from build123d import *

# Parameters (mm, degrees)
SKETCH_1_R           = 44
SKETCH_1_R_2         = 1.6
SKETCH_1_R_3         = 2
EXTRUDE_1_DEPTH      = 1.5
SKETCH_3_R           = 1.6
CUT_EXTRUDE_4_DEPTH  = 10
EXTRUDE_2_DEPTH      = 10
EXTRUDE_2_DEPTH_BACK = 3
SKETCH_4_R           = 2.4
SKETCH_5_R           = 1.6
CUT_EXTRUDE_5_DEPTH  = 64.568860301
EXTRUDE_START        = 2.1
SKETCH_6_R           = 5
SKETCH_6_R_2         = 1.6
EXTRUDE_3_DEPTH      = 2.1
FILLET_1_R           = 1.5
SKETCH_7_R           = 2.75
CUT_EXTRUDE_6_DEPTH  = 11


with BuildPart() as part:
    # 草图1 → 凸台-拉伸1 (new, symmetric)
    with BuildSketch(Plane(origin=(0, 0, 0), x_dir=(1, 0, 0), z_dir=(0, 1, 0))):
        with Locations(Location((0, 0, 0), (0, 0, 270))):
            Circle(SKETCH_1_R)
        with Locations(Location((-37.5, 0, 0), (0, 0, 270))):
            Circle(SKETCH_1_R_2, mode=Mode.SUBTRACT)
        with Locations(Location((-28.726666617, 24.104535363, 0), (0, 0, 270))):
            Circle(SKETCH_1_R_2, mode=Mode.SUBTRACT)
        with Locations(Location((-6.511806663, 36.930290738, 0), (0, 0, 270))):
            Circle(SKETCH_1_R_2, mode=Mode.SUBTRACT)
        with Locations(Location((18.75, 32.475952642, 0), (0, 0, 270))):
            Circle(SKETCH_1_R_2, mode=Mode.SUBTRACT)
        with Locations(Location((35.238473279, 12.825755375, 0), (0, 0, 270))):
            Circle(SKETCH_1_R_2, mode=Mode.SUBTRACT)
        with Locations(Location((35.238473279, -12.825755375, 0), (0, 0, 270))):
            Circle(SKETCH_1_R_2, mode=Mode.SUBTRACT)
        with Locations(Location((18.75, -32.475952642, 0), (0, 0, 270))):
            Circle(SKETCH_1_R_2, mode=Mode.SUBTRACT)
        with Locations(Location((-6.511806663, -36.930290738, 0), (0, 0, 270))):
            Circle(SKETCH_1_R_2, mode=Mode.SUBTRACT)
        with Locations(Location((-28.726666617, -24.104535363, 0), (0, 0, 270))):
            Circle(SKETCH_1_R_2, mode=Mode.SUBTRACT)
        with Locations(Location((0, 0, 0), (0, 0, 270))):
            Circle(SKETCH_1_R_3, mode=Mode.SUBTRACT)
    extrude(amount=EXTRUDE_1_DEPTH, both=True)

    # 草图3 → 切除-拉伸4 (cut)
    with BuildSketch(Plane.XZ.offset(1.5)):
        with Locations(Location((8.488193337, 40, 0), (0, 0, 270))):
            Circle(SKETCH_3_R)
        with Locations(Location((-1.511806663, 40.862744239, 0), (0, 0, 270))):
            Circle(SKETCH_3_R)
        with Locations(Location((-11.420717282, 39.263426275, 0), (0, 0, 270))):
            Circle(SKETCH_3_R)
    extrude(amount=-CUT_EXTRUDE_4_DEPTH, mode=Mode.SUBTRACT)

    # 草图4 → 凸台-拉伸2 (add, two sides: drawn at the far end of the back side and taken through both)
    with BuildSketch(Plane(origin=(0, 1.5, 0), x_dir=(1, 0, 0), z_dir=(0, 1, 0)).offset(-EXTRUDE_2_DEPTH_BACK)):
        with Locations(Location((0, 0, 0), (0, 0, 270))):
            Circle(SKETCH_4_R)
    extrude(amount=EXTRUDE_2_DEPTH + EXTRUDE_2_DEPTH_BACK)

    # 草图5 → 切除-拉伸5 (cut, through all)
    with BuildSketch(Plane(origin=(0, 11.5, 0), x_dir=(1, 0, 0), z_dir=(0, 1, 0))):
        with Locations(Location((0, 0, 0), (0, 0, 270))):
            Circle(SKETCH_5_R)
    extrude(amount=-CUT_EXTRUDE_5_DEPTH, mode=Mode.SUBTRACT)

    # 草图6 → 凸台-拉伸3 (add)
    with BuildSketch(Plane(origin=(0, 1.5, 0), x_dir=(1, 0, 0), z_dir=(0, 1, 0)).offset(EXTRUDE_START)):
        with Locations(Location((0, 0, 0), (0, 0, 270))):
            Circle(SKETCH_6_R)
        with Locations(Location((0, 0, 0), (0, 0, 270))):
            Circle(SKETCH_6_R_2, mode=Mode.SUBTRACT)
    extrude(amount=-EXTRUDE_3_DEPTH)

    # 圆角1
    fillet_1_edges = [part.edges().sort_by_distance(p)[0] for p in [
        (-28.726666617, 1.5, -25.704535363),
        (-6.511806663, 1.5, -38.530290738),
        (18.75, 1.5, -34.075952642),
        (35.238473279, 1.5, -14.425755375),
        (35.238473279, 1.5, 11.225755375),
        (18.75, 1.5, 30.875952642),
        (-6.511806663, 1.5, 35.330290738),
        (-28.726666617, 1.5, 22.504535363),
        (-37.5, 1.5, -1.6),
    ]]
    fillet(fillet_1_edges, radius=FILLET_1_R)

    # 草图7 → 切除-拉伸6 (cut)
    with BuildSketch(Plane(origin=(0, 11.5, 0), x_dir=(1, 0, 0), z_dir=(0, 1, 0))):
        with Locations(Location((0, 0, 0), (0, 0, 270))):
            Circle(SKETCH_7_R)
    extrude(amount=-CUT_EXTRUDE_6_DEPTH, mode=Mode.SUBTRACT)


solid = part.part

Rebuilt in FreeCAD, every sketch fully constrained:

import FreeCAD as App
import Part
import Sketcher

V = App.Vector


def edges_at(feature, points):
    """Names of the edges that pass closest to the given points."""
    edges = feature.Shape.Edges
    near = lambda p: min(range(len(edges)), key=lambda i: edges[i].distToShape(Part.Vertex(*p))[0])
    return sorted({f"Edge{near(p) + 1}" for p in points})

doc = App.newDocument("Part")
body = doc.addObject("PartDesign::Body", "Body")

# Sketch on XZ plane
sketch1 = doc.addObject("Sketcher::SketchObject", "Sketch")
body.addObject(sketch1)
sketch1.AttachmentSupport = (doc.XZ_Plane, [""])
sketch1.MapMode = "FlatFace"
sketch1.addGeometry([
    Part.Circle(V(0, 0, 0), V(0, 0, 1), 44),  # 0
    Part.Circle(V(-28.726667, -24.104535, 0), V(0, 0, 1), 1.6),  # 1
    Part.Circle(V(-6.511807, -36.930291, 0), V(0, 0, 1), 1.6),  # 2
    Part.Circle(V(-37.5, 0, 0), V(0, 0, 1), 1.6),  # 3
    Part.Circle(V(-28.726667, 24.104535, 0), V(0, 0, 1), 1.6),  # 4
    Part.Circle(V(-6.511807, 36.930291, 0), V(0, 0, 1), 1.6),  # 5
    Part.Circle(V(0, 0, 0), V(0, 0, 1), 2),  # 6
    Part.Circle(V(18.75, -32.475953, 0), V(0, 0, 1), 1.6),  # 7
    Part.Circle(V(35.238473, -12.825755, 0), V(0, 0, 1), 1.6),  # 8
    Part.Circle(V(35.238473, 12.825755, 0), V(0, 0, 1), 1.6),  # 9
    Part.Circle(V(18.75, 32.475953, 0), V(0, 0, 1), 1.6),  # 10
], False)
sketch1.addConstraint([
    Sketcher.Constraint("Coincident", 0, 3, -1, 1),
    Sketcher.Constraint("Coincident", 6, 3, -1, 1),
    Sketcher.Constraint("Equal", 1, 2),
    Sketcher.Constraint("Equal", 2, 3),
    Sketcher.Constraint("Equal", 3, 4),
    Sketcher.Constraint("Equal", 4, 5),
    Sketcher.Constraint("Equal", 5, 7),
    Sketcher.Constraint("Equal", 7, 8),
    Sketcher.Constraint("Equal", 8, 9),
    Sketcher.Constraint("Equal", 9, 10),
    Sketcher.Constraint("Symmetric", 1, 3, 4, 3, -1),
    Sketcher.Constraint("Symmetric", 2, 3, 5, 3, -1),
    Sketcher.Constraint("Symmetric", 8, 3, 9, 3, -1),
    Sketcher.Constraint("Symmetric", 7, 3, 10, 3, -1),
    Sketcher.Constraint("PointOnObject", 3, 3, -1),
    Sketcher.Constraint("Diameter", 0, 88.0),
    Sketcher.Constraint("Diameter", 6, 4.0),
    Sketcher.Constraint("Diameter", 1, 3.2),
    Sketcher.Constraint("DistanceX", 3, 3, -1, 1, 37.5),
    Sketcher.Constraint("DistanceX", -1, 1, 7, 3, 18.75),
    Sketcher.Constraint("DistanceY", 2, 3, -1, 1, 36.930291),
    Sketcher.Constraint("DistanceX", 1, 3, 2, 3, 22.21486),
    Sketcher.Constraint("DistanceY", 1, 3, 4, 3, 48.209071),
    Sketcher.Constraint("DistanceY", 2, 3, 7, 3, 4.454338),
    Sketcher.Constraint("DistanceX", 2, 3, 8, 3, 41.75028),
    Sketcher.Constraint("DistanceY", 1, 3, 8, 3, 11.27878),
    Sketcher.Constraint("DistanceX", 1, 3, -1, 1, 28.726667),
])
pad1 = doc.addObject("PartDesign::Pad", "Pad")
body.addObject(pad1)
pad1.Profile = sketch1
pad1.Length = 3
pad1.Midplane = True

# Sketch on XZ plane
sketch2 = doc.addObject("Sketcher::SketchObject", "Sketch001")
body.addObject(sketch2)
sketch2.AttachmentSupport = (doc.XZ_Plane, [""])
sketch2.MapMode = "FlatFace"
sketch2.AttachmentOffset = App.Placement(V(0, 0, 1.5), App.Rotation())
sketch2.addGeometry([
    Part.Circle(V(8.488193, 40, 0), V(0, 0, 1), 1.6),
    Part.Circle(V(-1.511807, 40.862744, 0), V(0, 0, 1), 1.6),
    Part.Circle(V(-11.420717, 39.263426, 0), V(0, 0, 1), 1.6),
], False)
sketch2.addConstraint([
    Sketcher.Constraint("Equal", 0, 1),
    Sketcher.Constraint("Equal", 1, 2),
    Sketcher.Constraint("Diameter", 0, 3.2),
    Sketcher.Constraint("DistanceY", -1, 1, 0, 3, 40.0),
    Sketcher.Constraint("DistanceX", 1, 3, 0, 3, 10.0),
    Sketcher.Constraint("DistanceX", 2, 3, 1, 3, 9.908911),
    Sketcher.Constraint("DistanceX", -1, 1, 0, 3, 8.488193),
    Sketcher.Constraint("DistanceY", -1, 1, 1, 3, 40.862744),
    Sketcher.Constraint("DistanceY", -1, 1, 2, 3, 39.263426),
])
pocket1 = doc.addObject("PartDesign::Pocket", "Pocket")
body.addObject(pocket1)
pocket1.Profile = sketch2
pocket1.Length = 10

# Sketch on XZ plane
sketch3 = doc.addObject("Sketcher::SketchObject", "Sketch002")
body.addObject(sketch3)
sketch3.AttachmentSupport = (doc.XZ_Plane, [""])
sketch3.MapMode = "FlatFace"
sketch3.AttachmentOffset = App.Placement(V(0, 0, -1.5), App.Rotation())
sketch3.addGeometry(Part.Circle(V(0, 0, 0), V(0, 0, 1), 2.4), False)
sketch3.addConstraint([
    Sketcher.Constraint("Coincident", 0, 3, -1, 1),
    Sketcher.Constraint("Diameter", 0, 4.8),
])
pad2 = doc.addObject("PartDesign::Pad", "Pad001")
body.addObject(pad2)
pad2.Profile = sketch3
pad2.Type = "TwoLengths"
pad2.Length = 10
pad2.Length2 = 3
pad2.Reversed = True

# Sketch on XZ plane
sketch4 = doc.addObject("Sketcher::SketchObject", "Sketch003")
body.addObject(sketch4)
sketch4.AttachmentSupport = (doc.XZ_Plane, [""])
sketch4.MapMode = "FlatFace"
sketch4.AttachmentOffset = App.Placement(V(0, 0, -11.5), App.Rotation())
sketch4.addGeometry(Part.Circle(V(0, 0, 0), V(0, 0, 1), 1.6), False)
sketch4.addConstraint([
    Sketcher.Constraint("Coincident", 0, 3, -1, 1),
    Sketcher.Constraint("Diameter", 0, 3.2),
])
pocket2 = doc.addObject("PartDesign::Pocket", "Pocket001")
body.addObject(pocket2)
pocket2.Profile = sketch4
pocket2.Type = "ThroughAll"
pocket2.Reversed = True

# Sketch on XZ plane
sketch5 = doc.addObject("Sketcher::SketchObject", "Sketch004")
body.addObject(sketch5)
sketch5.AttachmentSupport = (doc.XZ_Plane, [""])
sketch5.MapMode = "FlatFace"
sketch5.AttachmentOffset = App.Placement(V(0, 0, -3.6), App.Rotation())
sketch5.addGeometry([
    Part.Circle(V(0, 0, 0), V(0, 0, 1), 5),
    Part.Circle(V(0, 0, 0), V(0, 0, 1), 1.6),
], False)
sketch5.addConstraint([
    Sketcher.Constraint("Coincident", 0, 3, -1, 1),
    Sketcher.Constraint("Coincident", 1, 3, -1, 1),
    Sketcher.Constraint("Diameter", 0, 10.0),
    Sketcher.Constraint("Diameter", 1, 3.2),
])
pad3 = doc.addObject("PartDesign::Pad", "Pad002")
body.addObject(pad3)
pad3.Profile = sketch5
pad3.Length = 2.1
doc.recompute()

fillet = doc.addObject("PartDesign::Fillet", "Fillet")
body.addObject(fillet)
fillet.Base = (pad3, edges_at(pad3, [
    (-28.727, 1.5, -25.705),
    (-6.512, 1.5, -38.53),
    (18.75, 1.5, -34.076),
    (35.238, 1.5, -14.426),
    (35.238, 1.5, 11.226),
    (18.75, 1.5, 30.876),
    (-6.512, 1.5, 35.33),
    (-28.727, 1.5, 22.505),
    (-37.5, 1.5, -1.6),
]))
fillet.Radius = 1.5

# Sketch on XZ plane
sketch6 = doc.addObject("Sketcher::SketchObject", "Sketch005")
body.addObject(sketch6)
sketch6.AttachmentSupport = (doc.XZ_Plane, [""])
sketch6.MapMode = "FlatFace"
sketch6.AttachmentOffset = App.Placement(V(0, 0, -11.5), App.Rotation())
sketch6.addGeometry(Part.Circle(V(0, 0, 0), V(0, 0, 1), 2.75), False)
sketch6.addConstraint([
    Sketcher.Constraint("Coincident", 0, 3, -1, 1),
    Sketcher.Constraint("Diameter", 0, 5.5),
])
pocket3 = doc.addObject("PartDesign::Pocket", "Pocket002")
body.addObject(pocket3)
pocket3.Profile = sketch6
pocket3.Length = 11
pocket3.Reversed = True

doc.recompute()
